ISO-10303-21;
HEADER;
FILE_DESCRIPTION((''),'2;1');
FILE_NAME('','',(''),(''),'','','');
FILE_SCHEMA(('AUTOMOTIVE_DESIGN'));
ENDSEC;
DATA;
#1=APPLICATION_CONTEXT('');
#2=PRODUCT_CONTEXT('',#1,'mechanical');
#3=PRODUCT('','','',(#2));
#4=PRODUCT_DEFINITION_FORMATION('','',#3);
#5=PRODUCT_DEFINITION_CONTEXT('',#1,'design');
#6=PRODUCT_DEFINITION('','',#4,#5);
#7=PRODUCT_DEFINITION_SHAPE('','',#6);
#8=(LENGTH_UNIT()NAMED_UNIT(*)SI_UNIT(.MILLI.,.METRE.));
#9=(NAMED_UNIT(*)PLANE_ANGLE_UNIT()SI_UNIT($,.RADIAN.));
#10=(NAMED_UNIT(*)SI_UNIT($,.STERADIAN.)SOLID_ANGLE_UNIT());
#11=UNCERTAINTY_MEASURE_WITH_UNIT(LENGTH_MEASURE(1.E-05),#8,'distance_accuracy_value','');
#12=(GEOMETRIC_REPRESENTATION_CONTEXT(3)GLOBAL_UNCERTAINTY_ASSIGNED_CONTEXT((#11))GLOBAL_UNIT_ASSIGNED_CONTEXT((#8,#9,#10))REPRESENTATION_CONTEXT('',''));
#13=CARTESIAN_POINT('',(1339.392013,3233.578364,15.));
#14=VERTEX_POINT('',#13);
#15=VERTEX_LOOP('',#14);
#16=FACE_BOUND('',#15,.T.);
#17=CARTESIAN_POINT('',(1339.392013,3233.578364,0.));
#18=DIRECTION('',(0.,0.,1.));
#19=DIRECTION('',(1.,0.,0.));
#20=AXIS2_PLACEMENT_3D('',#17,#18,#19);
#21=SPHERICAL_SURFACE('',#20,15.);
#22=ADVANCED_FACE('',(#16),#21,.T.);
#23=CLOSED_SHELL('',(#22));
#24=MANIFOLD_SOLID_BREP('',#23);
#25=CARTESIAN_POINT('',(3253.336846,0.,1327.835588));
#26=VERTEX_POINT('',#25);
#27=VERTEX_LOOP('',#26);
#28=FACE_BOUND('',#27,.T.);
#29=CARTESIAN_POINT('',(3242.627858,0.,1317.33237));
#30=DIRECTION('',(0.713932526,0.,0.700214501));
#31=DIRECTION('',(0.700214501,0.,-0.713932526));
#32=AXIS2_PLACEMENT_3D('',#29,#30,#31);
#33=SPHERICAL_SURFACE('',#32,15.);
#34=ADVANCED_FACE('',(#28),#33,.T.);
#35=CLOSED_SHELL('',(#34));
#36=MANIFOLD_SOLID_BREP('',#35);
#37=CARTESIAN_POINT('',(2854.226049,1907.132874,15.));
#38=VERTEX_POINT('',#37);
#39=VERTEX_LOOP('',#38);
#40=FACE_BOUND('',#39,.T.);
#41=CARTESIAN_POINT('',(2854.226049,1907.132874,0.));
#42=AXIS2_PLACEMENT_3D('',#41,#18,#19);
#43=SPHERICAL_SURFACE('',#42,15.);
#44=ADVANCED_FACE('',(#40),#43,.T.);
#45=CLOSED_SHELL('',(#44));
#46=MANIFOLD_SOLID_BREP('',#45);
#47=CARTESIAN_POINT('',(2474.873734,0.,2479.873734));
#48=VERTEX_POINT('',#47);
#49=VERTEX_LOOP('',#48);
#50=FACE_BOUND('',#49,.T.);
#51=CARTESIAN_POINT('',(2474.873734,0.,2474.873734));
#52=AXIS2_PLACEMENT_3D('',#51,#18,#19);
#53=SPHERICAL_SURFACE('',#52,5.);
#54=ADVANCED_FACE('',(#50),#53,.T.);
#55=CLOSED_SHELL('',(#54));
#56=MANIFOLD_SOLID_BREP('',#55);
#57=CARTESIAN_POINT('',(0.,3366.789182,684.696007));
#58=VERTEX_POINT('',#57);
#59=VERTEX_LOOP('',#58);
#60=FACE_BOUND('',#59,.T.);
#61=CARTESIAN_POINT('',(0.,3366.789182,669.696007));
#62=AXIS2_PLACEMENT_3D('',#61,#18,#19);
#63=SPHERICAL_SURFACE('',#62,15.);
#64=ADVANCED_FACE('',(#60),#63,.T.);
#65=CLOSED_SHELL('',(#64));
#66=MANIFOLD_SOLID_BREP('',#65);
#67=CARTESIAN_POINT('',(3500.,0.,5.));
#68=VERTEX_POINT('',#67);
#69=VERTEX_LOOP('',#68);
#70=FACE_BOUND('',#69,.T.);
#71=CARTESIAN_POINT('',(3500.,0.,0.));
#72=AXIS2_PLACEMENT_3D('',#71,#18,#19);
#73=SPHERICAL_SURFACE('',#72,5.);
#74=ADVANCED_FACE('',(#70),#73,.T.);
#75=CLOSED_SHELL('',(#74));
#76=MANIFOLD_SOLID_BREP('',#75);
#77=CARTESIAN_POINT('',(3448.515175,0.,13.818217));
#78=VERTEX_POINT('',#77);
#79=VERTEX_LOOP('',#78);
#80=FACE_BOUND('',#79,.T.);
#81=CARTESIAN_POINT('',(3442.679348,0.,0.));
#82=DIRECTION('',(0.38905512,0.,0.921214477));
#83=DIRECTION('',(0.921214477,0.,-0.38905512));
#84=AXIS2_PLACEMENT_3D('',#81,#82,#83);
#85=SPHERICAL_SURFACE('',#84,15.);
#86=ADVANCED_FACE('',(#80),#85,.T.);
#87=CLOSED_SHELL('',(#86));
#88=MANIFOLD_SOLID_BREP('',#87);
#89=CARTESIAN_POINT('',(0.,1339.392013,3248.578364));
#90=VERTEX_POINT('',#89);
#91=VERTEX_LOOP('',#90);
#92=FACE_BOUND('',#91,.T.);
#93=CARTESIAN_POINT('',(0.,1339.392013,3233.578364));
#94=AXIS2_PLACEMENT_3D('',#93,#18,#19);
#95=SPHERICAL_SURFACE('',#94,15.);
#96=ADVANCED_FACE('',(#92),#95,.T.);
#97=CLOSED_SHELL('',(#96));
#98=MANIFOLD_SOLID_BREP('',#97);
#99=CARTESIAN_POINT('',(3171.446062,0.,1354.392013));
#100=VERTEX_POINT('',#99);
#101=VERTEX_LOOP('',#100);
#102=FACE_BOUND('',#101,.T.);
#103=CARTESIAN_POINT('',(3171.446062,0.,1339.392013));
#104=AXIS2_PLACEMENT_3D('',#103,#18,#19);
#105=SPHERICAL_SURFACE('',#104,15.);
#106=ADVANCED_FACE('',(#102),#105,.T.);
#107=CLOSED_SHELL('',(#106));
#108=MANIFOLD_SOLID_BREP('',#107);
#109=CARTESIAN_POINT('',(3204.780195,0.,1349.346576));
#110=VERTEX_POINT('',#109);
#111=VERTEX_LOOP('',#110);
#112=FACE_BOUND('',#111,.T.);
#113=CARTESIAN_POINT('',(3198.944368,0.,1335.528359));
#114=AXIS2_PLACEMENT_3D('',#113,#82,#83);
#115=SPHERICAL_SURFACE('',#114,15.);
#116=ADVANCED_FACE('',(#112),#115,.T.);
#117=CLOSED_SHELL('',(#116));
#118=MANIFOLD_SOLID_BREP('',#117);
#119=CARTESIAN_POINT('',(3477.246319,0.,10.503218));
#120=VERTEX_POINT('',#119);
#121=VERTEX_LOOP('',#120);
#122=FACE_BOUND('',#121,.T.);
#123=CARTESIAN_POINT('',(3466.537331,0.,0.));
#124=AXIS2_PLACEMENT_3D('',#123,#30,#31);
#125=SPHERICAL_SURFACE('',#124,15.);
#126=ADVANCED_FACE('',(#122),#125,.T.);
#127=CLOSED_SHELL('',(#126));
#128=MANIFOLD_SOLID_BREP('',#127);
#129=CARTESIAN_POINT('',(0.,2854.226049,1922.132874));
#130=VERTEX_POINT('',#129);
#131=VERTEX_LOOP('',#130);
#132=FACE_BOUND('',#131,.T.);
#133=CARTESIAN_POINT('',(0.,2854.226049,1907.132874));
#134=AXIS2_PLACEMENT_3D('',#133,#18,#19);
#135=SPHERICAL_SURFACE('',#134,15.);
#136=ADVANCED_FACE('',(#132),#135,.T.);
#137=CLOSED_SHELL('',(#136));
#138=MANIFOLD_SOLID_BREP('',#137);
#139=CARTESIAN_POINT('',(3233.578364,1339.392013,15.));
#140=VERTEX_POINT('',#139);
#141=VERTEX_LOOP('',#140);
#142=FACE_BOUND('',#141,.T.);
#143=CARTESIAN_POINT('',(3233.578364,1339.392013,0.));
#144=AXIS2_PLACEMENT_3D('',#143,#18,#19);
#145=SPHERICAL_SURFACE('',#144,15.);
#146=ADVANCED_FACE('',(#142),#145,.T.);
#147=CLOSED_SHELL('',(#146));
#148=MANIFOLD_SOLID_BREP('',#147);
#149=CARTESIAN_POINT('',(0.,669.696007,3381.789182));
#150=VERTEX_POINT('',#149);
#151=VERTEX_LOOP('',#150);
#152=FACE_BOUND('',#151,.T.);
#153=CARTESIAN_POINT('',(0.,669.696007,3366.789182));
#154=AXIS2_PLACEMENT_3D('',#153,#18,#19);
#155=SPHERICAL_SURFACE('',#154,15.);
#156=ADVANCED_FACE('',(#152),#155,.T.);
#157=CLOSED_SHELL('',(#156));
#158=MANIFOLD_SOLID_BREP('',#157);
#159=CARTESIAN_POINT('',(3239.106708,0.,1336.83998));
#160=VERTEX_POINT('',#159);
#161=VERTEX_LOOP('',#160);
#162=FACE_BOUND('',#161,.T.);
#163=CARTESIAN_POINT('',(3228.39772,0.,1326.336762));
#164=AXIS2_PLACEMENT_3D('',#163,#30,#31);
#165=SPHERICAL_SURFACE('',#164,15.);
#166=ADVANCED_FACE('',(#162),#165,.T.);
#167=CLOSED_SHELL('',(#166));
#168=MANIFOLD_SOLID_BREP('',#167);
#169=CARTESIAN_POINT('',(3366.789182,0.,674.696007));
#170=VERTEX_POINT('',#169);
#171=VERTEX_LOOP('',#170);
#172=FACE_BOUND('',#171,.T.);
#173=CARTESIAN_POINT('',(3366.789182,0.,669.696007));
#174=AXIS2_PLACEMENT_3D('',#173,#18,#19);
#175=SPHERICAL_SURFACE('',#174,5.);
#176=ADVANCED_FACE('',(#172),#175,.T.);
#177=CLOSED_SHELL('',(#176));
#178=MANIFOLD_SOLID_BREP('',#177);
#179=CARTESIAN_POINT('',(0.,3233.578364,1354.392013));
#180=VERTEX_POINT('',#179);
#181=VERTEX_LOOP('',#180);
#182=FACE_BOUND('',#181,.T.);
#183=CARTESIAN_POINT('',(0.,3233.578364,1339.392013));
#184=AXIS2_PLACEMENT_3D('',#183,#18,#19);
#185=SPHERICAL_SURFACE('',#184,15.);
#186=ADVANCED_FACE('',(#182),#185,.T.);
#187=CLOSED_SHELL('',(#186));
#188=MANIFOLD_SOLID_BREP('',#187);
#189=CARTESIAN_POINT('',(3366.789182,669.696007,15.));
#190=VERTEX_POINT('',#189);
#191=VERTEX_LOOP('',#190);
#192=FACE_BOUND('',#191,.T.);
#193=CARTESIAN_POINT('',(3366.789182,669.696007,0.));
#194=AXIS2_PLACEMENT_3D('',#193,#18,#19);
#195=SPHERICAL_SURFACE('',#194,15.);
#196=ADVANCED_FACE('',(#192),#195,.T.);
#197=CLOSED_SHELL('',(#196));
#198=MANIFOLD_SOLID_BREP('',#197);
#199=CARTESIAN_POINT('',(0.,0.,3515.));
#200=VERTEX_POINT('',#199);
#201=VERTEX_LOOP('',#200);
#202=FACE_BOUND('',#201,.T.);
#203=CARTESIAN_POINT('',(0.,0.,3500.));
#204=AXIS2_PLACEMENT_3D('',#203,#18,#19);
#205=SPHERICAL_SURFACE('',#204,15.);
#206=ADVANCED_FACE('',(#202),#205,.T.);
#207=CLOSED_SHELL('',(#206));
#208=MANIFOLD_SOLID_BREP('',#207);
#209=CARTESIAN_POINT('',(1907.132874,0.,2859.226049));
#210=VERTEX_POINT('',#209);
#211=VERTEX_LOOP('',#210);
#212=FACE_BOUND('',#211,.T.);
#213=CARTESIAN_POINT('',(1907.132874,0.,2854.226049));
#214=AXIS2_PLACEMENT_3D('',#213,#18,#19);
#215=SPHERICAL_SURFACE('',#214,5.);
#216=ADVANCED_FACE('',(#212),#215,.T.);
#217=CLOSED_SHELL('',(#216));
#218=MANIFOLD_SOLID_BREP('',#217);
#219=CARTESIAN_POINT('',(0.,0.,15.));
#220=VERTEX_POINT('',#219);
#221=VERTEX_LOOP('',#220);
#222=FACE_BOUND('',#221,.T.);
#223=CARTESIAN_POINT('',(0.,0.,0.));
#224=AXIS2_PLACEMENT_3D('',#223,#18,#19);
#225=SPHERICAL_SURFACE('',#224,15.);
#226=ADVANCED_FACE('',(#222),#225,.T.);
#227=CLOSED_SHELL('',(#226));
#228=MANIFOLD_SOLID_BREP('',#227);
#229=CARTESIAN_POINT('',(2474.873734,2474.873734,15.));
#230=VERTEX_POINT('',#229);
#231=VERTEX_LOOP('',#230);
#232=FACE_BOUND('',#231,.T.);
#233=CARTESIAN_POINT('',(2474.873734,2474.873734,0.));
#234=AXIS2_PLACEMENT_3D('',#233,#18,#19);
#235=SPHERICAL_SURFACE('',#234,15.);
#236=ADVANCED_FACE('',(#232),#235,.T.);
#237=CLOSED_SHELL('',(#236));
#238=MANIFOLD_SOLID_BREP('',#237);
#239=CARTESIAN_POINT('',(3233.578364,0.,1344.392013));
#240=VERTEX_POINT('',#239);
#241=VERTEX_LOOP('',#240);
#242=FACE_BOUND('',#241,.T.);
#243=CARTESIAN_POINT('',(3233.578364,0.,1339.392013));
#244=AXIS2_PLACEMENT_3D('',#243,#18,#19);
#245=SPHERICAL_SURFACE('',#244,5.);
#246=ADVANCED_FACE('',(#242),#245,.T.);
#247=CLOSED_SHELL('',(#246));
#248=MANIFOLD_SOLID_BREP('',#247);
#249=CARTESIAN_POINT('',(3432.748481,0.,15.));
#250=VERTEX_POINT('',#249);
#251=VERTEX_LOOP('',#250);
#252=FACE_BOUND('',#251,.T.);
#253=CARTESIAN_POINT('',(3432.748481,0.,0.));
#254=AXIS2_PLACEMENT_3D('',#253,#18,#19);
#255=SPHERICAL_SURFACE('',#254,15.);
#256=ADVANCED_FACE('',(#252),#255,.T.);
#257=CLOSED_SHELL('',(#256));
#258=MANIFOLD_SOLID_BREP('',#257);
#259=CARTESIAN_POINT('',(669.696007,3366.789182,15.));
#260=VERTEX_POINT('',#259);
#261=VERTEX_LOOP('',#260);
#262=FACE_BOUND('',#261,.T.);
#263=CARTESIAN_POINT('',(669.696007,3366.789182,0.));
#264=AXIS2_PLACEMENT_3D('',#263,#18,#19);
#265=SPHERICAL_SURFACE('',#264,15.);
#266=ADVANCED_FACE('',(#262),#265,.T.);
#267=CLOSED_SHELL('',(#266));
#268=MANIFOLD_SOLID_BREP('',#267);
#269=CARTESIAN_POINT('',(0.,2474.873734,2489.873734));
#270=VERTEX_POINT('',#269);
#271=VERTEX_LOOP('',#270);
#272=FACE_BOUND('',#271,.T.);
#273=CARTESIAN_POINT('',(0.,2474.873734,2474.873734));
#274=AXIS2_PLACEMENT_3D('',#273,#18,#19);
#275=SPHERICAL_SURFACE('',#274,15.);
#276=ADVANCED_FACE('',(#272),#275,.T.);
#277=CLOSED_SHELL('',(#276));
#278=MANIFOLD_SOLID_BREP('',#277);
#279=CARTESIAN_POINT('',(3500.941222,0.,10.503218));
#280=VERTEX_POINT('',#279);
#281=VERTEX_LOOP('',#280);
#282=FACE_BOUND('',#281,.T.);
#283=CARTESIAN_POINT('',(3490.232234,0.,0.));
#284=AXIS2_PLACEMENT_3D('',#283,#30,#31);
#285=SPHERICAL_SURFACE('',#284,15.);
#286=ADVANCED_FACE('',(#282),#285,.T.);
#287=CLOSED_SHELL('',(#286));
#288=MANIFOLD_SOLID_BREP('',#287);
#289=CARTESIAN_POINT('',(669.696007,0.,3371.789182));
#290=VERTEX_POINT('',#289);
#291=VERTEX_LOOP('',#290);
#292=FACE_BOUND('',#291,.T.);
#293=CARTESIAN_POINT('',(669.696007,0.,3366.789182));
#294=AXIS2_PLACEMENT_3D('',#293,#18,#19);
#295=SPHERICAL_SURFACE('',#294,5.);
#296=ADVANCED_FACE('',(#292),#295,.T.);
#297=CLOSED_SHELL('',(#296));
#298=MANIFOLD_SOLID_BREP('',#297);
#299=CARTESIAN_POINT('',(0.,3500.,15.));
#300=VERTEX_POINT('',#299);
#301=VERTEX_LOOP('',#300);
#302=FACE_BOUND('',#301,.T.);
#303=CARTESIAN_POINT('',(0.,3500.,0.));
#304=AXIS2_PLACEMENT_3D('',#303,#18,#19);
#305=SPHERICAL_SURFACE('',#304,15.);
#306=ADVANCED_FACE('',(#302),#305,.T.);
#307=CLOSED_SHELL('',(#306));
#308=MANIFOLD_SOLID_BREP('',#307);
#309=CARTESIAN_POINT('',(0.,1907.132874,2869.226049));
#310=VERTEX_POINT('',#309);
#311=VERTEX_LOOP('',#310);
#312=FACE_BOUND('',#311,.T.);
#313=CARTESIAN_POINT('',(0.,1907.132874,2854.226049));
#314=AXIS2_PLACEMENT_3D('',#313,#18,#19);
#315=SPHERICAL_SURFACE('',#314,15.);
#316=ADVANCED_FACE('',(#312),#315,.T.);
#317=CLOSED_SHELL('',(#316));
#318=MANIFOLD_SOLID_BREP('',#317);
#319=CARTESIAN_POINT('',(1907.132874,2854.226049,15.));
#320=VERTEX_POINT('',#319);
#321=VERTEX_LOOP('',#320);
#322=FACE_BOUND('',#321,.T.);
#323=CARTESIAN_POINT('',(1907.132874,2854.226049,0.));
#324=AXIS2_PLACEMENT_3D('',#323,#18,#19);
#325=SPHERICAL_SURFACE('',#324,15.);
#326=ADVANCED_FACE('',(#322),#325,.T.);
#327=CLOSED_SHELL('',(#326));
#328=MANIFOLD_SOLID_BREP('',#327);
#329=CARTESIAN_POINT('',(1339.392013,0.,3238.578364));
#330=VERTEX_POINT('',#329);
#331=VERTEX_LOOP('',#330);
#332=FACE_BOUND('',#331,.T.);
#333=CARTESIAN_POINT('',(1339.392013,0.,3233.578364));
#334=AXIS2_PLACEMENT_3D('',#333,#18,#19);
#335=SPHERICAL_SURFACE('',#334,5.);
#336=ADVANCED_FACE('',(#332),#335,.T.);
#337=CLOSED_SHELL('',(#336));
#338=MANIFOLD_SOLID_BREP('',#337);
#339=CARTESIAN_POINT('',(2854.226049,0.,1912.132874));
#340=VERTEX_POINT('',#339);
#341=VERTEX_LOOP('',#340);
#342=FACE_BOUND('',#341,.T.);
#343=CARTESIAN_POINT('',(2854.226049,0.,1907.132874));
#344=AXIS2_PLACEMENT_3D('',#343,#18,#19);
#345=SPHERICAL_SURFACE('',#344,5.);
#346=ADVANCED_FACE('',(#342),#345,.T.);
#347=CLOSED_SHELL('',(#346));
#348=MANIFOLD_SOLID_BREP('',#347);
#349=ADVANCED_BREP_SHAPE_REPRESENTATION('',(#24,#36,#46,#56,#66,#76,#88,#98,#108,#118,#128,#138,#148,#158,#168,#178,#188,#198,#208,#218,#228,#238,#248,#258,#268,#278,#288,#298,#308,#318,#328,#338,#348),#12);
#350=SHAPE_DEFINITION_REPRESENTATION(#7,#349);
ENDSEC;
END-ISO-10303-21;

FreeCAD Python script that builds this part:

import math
import FreeCAD as App
import Part
import Sketcher
from FreeCAD import Vector

doc = App.newDocument("Part")
body = doc.addObject("PartDesign::Body", "Body")

sketch1 = doc.addObject("Sketcher::SketchObject", "Sketch")
body.addObject(sketch1)
sketch1.AttachmentSupport = (doc.XZ_Plane, [""])
sketch1.MapMode = "FlatFace"
sketch1.addGeometry([
    Part.ArcOfCircle(Part.Circle(Vector(3500, 0, 0), Vector(0, 0, 1), 5), math.radians(-90), math.radians(90)),
    Part.LineSegment(Vector(3500, 5, 0), Vector(3500, -5, 0)),
], False)
sketch1.addGeometry(Part.LineSegment(Vector(3500, -5, 0), Vector(3500, 5, 0)), True)
sketch1.addConstraint([
    Sketcher.Constraint("Coincident", 0, 1, 1, 2),
    Sketcher.Constraint("Coincident", 1, 1, 0, 2),
    Sketcher.Constraint("Vertical", 1),
    Sketcher.Constraint("Vertical", 2),
    Sketcher.Constraint("Coincident", 2, 1, 0, 1),
    Sketcher.Constraint("PointOnObject", 0, 3, -1),
    Sketcher.Constraint("Equal", 1, 2),
    Sketcher.Constraint("Radius", 0, 5.0),
    Sketcher.Constraint("DistanceX", -1, 1, 0, 3, 3500.0),
    Sketcher.Constraint("DistanceX", -1, 1, 0, 1, 3500.0),
])
revolution = doc.addObject("PartDesign::Revolution", "Revolution")
body.addObject(revolution)
revolution.Profile = sketch1
revolution.ReferenceAxis = (sketch1, ["Axis0"])
revolution.Angle = 360
body2 = doc.addObject("PartDesign::Body", "Body001")

sketch2 = doc.addObject("Sketcher::SketchObject", "Sketch001")
body2.addObject(sketch2)
sketch2.AttachmentSupport = (doc.getObject("XZ_Plane001"), [""])
sketch2.MapMode = "FlatFace"
sketch2.addGeometry([
    Part.ArcOfCircle(Part.Circle(Vector(0, 0, 0), Vector(0, 0, 1), 15), math.radians(-90), math.radians(90)),
    Part.LineSegment(Vector(0, 15, 0), Vector(0, -15, 0)),
], False)
sketch2.addConstraint([
    Sketcher.Constraint("Coincident", 0, 1, 1, 2),
    Sketcher.Constraint("Coincident", 1, 1, 0, 2),
    Sketcher.Constraint("Vertical", 1),
    Sketcher.Constraint("Coincident", 0, 3, -1, 1),
    Sketcher.Constraint("PointOnObject", 0, 1, -2),
    Sketcher.Constraint("Radius", 0, 15.0),
])
revolution2 = doc.addObject("PartDesign::Revolution", "Revolution001")
body2.addObject(revolution2)
revolution2.Profile = sketch2
revolution2.ReferenceAxis = (sketch2, ["V_Axis"])
revolution2.Angle = 360
body3 = doc.addObject("PartDesign::Body", "Body002")

sketch3 = doc.addObject("Sketcher::SketchObject", "Sketch002")
body3.addObject(sketch3)
sketch3.AttachmentSupport = (doc.getObject("XZ_Plane002"), [""])
sketch3.MapMode = "FlatFace"
sketch3.addGeometry([
    Part.ArcOfCircle(Part.Circle(Vector(0, 3500, 0), Vector(0, 0, 1), 15), math.radians(-90), math.radians(90)),
    Part.LineSegment(Vector(0, 3515, 0), Vector(0, 3485, 0)),
], False)
sketch3.addConstraint([
    Sketcher.Constraint("Coincident", 0, 1, 1, 2),
    Sketcher.Constraint("Coincident", 1, 1, 0, 2),
    Sketcher.Constraint("Vertical", 1),
    Sketcher.Constraint("PointOnObject", 0, 3, -2),
    Sketcher.Constraint("PointOnObject", 0, 1, -2),
    Sketcher.Constraint("Radius", 0, 15.0),
    Sketcher.Constraint("DistanceY", -1, 1, 0, 3, 3500.0),
])
revolution3 = doc.addObject("PartDesign::Revolution", "Revolution002")
body3.addObject(revolution3)
revolution3.Profile = sketch3
revolution3.ReferenceAxis = (sketch3, ["V_Axis"])
revolution3.Angle = 360
body4 = doc.addObject("PartDesign::Body", "Body003")

sketch4 = doc.addObject("Sketcher::SketchObject", "Sketch003")
body4.addObject(sketch4)
sketch4.AttachmentSupport = (doc.getObject("XZ_Plane003"), [""])
sketch4.MapMode = "FlatFace"
sketch4.addGeometry([
    Part.ArcOfCircle(Part.Circle(Vector(1339, 3234, 0), Vector(0, 0, 1), 5), math.radians(-90), math.radians(90)),
    Part.LineSegment(Vector(1339, 3239, 0), Vector(1339, 3229, 0)),
], False)
sketch4.addGeometry(Part.LineSegment(Vector(1339, 3229, 0), Vector(1339, 3239, 0)), True)
sketch4.addConstraint([
    Sketcher.Constraint("Coincident", 0, 1, 1, 2),
    Sketcher.Constraint("Coincident", 1, 1, 0, 2),
    Sketcher.Constraint("Vertical", 1),
    Sketcher.Constraint("Vertical", 2),
    Sketcher.Constraint("Coincident", 2, 1, 0, 1),
    Sketcher.Constraint("Equal", 1, 2),
    Sketcher.Constraint("Radius", 0, 5.0),
    Sketcher.Constraint("DistanceX", -1, 1, 0, 3, 1339.392013),
    Sketcher.Constraint("DistanceY", -1, 1, 0, 3, 3233.578364),
    Sketcher.Constraint("DistanceX", -1, 1, 0, 1, 1339.392013),
])
revolution4 = doc.addObject("PartDesign::Revolution", "Revolution003")
body4.addObject(revolution4)
revolution4.Profile = sketch4
revolution4.ReferenceAxis = (sketch4, ["Axis0"])
revolution4.Angle = 360
body5 = doc.addObject("PartDesign::Body", "Body004")

sketch5 = doc.addObject("Sketcher::SketchObject", "Sketch004")
body5.addObject(sketch5)
sketch5.AttachmentSupport = (doc.getObject("XZ_Plane004"), [""])
sketch5.MapMode = "FlatFace"
sketch5.addGeometry([
    Part.ArcOfCircle(Part.Circle(Vector(2475, 2475, 0), Vector(0, 0, 1), 5), math.radians(-90), math.radians(90)),
    Part.LineSegment(Vector(2475, 2480, 0), Vector(2475, 2470, 0)),
], False)
sketch5.addGeometry(Part.LineSegment(Vector(2475, 2470, 0), Vector(2475, 2480, 0)), True)
sketch5.addConstraint([
    Sketcher.Constraint("Coincident", 0, 1, 1, 2),
    Sketcher.Constraint("Coincident", 1, 1, 0, 2),
    Sketcher.Constraint("Vertical", 1),
    Sketcher.Constraint("Vertical", 2),
    Sketcher.Constraint("Coincident", 2, 1, 0, 1),
    Sketcher.Constraint("Equal", 1, 2),
    Sketcher.Constraint("Radius", 0, 5.0),
    Sketcher.Constraint("DistanceX", -1, 1, 0, 3, 2474.873734),
    Sketcher.Constraint("DistanceY", -1, 1, 0, 3, 2474.873734),
    Sketcher.Constraint("DistanceX", -1, 1, 0, 1, 2474.873734),
])
revolution5 = doc.addObject("PartDesign::Revolution", "Revolution004")
body5.addObject(revolution5)
revolution5.Profile = sketch5
revolution5.ReferenceAxis = (sketch5, ["Axis0"])
revolution5.Angle = 360
body6 = doc.addObject("PartDesign::Body", "Body005")

sketch6 = doc.addObject("Sketcher::SketchObject", "Sketch005")
body6.addObject(sketch6)
sketch6.AttachmentSupport = (doc.getObject("XZ_Plane005"), [""])
sketch6.MapMode = "FlatFace"
sketch6.addGeometry([
    Part.ArcOfCircle(Part.Circle(Vector(3234, 1339, 0), Vector(0, 0, 1), 5), math.radians(-90), math.radians(90)),
    Part.LineSegment(Vector(3234, 1344, 0), Vector(3234, 1334, 0)),
], False)
sketch6.addGeometry(Part.LineSegment(Vector(3234, 1334, 0), Vector(3234, 1344, 0)), True)
sketch6.addConstraint([
    Sketcher.Constraint("Coincident", 0, 1, 1, 2),
    Sketcher.Constraint("Coincident", 1, 1, 0, 2),
    Sketcher.Constraint("Vertical", 1),
    Sketcher.Constraint("Vertical", 2),
    Sketcher.Constraint("Coincident", 2, 1, 0, 1),
    Sketcher.Constraint("Equal", 1, 2),
    Sketcher.Constraint("Radius", 0, 5.0),
    Sketcher.Constraint("DistanceX", -1, 1, 0, 3, 3233.578364),
    Sketcher.Constraint("DistanceY", -1, 1, 0, 3, 1339.392013),
    Sketcher.Constraint("DistanceX", -1, 1, 0, 1, 3233.578364),
])
revolution6 = doc.addObject("PartDesign::Revolution", "Revolution005")
body6.addObject(revolution6)
revolution6.Profile = sketch6
revolution6.ReferenceAxis = (sketch6, ["Axis0"])
revolution6.Angle = 360
body7 = doc.addObject("PartDesign::Body", "Body006")

sketch7 = doc.addObject("Sketcher::SketchObject", "Sketch006")
body7.addObject(sketch7)
sketch7.AttachmentSupport = (doc.getObject("XZ_Plane006"), [""])
sketch7.MapMode = "FlatFace"
sketch7.AttachmentOffset = App.Placement(Vector(0, 0, -3500), App.Rotation())
sketch7.addGeometry([
    Part.ArcOfCircle(Part.Circle(Vector(0, 0, 0), Vector(0, 0, 1), 15), math.radians(-90), math.radians(90)),
    Part.LineSegment(Vector(0, 15, 0), Vector(0, -15, 0)),
], False)
sketch7.addConstraint([
    Sketcher.Constraint("Coincident", 0, 1, 1, 2),
    Sketcher.Constraint("Coincident", 1, 1, 0, 2),
    Sketcher.Constraint("Vertical", 1),
    Sketcher.Constraint("Coincident", 0, 3, -1, 1),
    Sketcher.Constraint("PointOnObject", 0, 1, -2),
    Sketcher.Constraint("Radius", 0, 15.0),
])
revolution7 = doc.addObject("PartDesign::Revolution", "Revolution006")
body7.addObject(revolution7)
revolution7.Profile = sketch7
revolution7.ReferenceAxis = (sketch7, ["V_Axis"])
revolution7.Angle = 360
body8 = doc.addObject("PartDesign::Body", "Body007")

sketch8 = doc.addObject("Sketcher::SketchObject", "Sketch007")
body8.addObject(sketch8)
sketch8.AttachmentSupport = (doc.getObject("XZ_Plane007"), [""])
sketch8.MapMode = "FlatFace"
sketch8.AttachmentOffset = App.Placement(Vector(0, 0, -3233.578364), App.Rotation())
sketch8.addGeometry([
    Part.ArcOfCircle(Part.Circle(Vector(0, 1339, 0), Vector(0, 0, 1), 15), math.radians(-90), math.radians(90)),
    Part.LineSegment(Vector(0, 1354, 0), Vector(0, 1324, 0)),
], False)
sketch8.addConstraint([
    Sketcher.Constraint("Coincident", 0, 1, 1, 2),
    Sketcher.Constraint("Coincident", 1, 1, 0, 2),
    Sketcher.Constraint("Vertical", 1),
    Sketcher.Constraint("PointOnObject", 0, 3, -2),
    Sketcher.Constraint("PointOnObject", 0, 1, -2),
    Sketcher.Constraint("Radius", 0, 15.0),
    Sketcher.Constraint("DistanceY", -1, 1, 0, 3, 1339.392013),
])
revolution8 = doc.addObject("PartDesign::Revolution", "Revolution007")
body8.addObject(revolution8)
revolution8.Profile = sketch8
revolution8.ReferenceAxis = (sketch8, ["V_Axis"])
revolution8.Angle = 360
body9 = doc.addObject("PartDesign::Body", "Body008")

sketch9 = doc.addObject("Sketcher::SketchObject", "Sketch008")
body9.addObject(sketch9)
sketch9.AttachmentSupport = (doc.getObject("XZ_Plane008"), [""])
sketch9.MapMode = "FlatFace"
sketch9.AttachmentOffset = App.Placement(Vector(0, 0, -2474.873734), App.Rotation())
sketch9.addGeometry([
    Part.ArcOfCircle(Part.Circle(Vector(0, 2475, 0), Vector(0, 0, 1), 15), math.radians(-90), math.radians(90)),
    Part.LineSegment(Vector(0, 2490, 0), Vector(0, 2460, 0)),
], False)
sketch9.addConstraint([
    Sketcher.Constraint("Coincident", 0, 1, 1, 2),
    Sketcher.Constraint("Coincident", 1, 1, 0, 2),
    Sketcher.Constraint("Vertical", 1),
    Sketcher.Constraint("PointOnObject", 0, 3, -2),
    Sketcher.Constraint("PointOnObject", 0, 1, -2),
    Sketcher.Constraint("Radius", 0, 15.0),
    Sketcher.Constraint("DistanceY", -1, 1, 0, 3, 2474.873734),
])
revolution9 = doc.addObject("PartDesign::Revolution", "Revolution008")
body9.addObject(revolution9)
revolution9.Profile = sketch9
revolution9.ReferenceAxis = (sketch9, ["V_Axis"])
revolution9.Angle = 360
body10 = doc.addObject("PartDesign::Body", "Body009")

sketch10 = doc.addObject("Sketcher::SketchObject", "Sketch009")
body10.addObject(sketch10)
sketch10.AttachmentSupport = (doc.getObject("XZ_Plane009"), [""])
sketch10.MapMode = "FlatFace"
sketch10.AttachmentOffset = App.Placement(Vector(0, 0, -1339.392013), App.Rotation())
sketch10.addGeometry([
    Part.ArcOfCircle(Part.Circle(Vector(0, 3234, 0), Vector(0, 0, 1), 15), math.radians(-90), math.radians(90)),
    Part.LineSegment(Vector(0, 3249, 0), Vector(0, 3219, 0)),
], False)
sketch10.addConstraint([
    Sketcher.Constraint("Coincident", 0, 1, 1, 2),
    Sketcher.Constraint("Coincident", 1, 1, 0, 2),
    Sketcher.Constraint("Vertical", 1),
    Sketcher.Constraint("PointOnObject", 0, 3, -2),
    Sketcher.Constraint("PointOnObject", 0, 1, -2),
    Sketcher.Constraint("Radius", 0, 15.0),
    Sketcher.Constraint("DistanceY", -1, 1, 0, 3, 3233.578364),
])
revolution10 = doc.addObject("PartDesign::Revolution", "Revolution009")
body10.addObject(revolution10)
revolution10.Profile = sketch10
revolution10.ReferenceAxis = (sketch10, ["V_Axis"])
revolution10.Angle = 360
body11 = doc.addObject("PartDesign::Body", "Body010")

sketch11 = doc.addObject("Sketcher::SketchObject", "Sketch010")
body11.addObject(sketch11)
sketch11.AttachmentSupport = (doc.getObject("XZ_Plane010"), [""])
sketch11.MapMode = "FlatFace"
sketch11.AttachmentOffset = App.Placement(Vector(0, 0, -3233.578364), App.Rotation())
sketch11.addGeometry([
    Part.ArcOfCircle(Part.Circle(Vector(1339, 0, 0), Vector(0, 0, 1), 15), math.radians(-90), math.radians(90)),
    Part.LineSegment(Vector(1339, 15, 0), Vector(1339, -15, 0)),
], False)
sketch11.addGeometry(Part.LineSegment(Vector(1339, -15, 0), Vector(1339, 15, 0)), True)
sketch11.addConstraint([
    Sketcher.Constraint("Coincident", 0, 1, 1, 2),
    Sketcher.Constraint("Coincident", 1, 1, 0, 2),
    Sketcher.Constraint("Vertical", 1),
    Sketcher.Constraint("Vertical", 2),
    Sketcher.Constraint("Coincident", 2, 1, 0, 1),
    Sketcher.Constraint("PointOnObject", 0, 3, -1),
    Sketcher.Constraint("Equal", 1, 2),
    Sketcher.Constraint("Radius", 0, 15.0),
    Sketcher.Constraint("DistanceX", -1, 1, 0, 3, 1339.392013),
    Sketcher.Constraint("DistanceX", -1, 1, 0, 1, 1339.392013),
])
revolution11 = doc.addObject("PartDesign::Revolution", "Revolution010")
body11.addObject(revolution11)
revolution11.Profile = sketch11
revolution11.ReferenceAxis = (sketch11, ["Axis0"])
revolution11.Angle = 360
body12 = doc.addObject("PartDesign::Body", "Body011")

sketch12 = doc.addObject("Sketcher::SketchObject", "Sketch011")
body12.addObject(sketch12)
sketch12.AttachmentSupport = (doc.getObject("XZ_Plane011"), [""])
sketch12.MapMode = "FlatFace"
sketch12.AttachmentOffset = App.Placement(Vector(0, 0, -2474.873734), App.Rotation())
sketch12.addGeometry([
    Part.ArcOfCircle(Part.Circle(Vector(2475, 0, 0), Vector(0, 0, 1), 15), math.radians(-90), math.radians(90)),
    Part.LineSegment(Vector(2475, 15, 0), Vector(2475, -15, 0)),
], False)
sketch12.addGeometry(Part.LineSegment(Vector(2475, -15, 0), Vector(2475, 15, 0)), True)
sketch12.addConstraint([
    Sketcher.Constraint("Coincident", 0, 1, 1, 2),
    Sketcher.Constraint("Coincident", 1, 1, 0, 2),
    Sketcher.Constraint("Vertical", 1),
    Sketcher.Constraint("Vertical", 2),
    Sketcher.Constraint("Coincident", 2, 1, 0, 1),
    Sketcher.Constraint("PointOnObject", 0, 3, -1),
    Sketcher.Constraint("Equal", 1, 2),
    Sketcher.Constraint("Radius", 0, 15.0),
    Sketcher.Constraint("DistanceX", -1, 1, 0, 3, 2474.873734),
    Sketcher.Constraint("DistanceX", -1, 1, 0, 1, 2474.873734),
])
revolution12 = doc.addObject("PartDesign::Revolution", "Revolution011")
body12.addObject(revolution12)
revolution12.Profile = sketch12
revolution12.ReferenceAxis = (sketch12, ["Axis0"])
revolution12.Angle = 360
body13 = doc.addObject("PartDesign::Body", "Body012")

sketch13 = doc.addObject("Sketcher::SketchObject", "Sketch012")
body13.addObject(sketch13)
sketch13.AttachmentSupport = (doc.getObject("XZ_Plane012"), [""])
sketch13.MapMode = "FlatFace"
sketch13.AttachmentOffset = App.Placement(Vector(0, 0, -1339.392013), App.Rotation())
sketch13.addGeometry([
    Part.ArcOfCircle(Part.Circle(Vector(3234, 0, 0), Vector(0, 0, 1), 15), math.radians(-90), math.radians(90)),
    Part.LineSegment(Vector(3234, 15, 0), Vector(3234, -15, 0)),
], False)
sketch13.addGeometry(Part.LineSegment(Vector(3234, -15, 0), Vector(3234, 15, 0)), True)
sketch13.addConstraint([
    Sketcher.Constraint("Coincident", 0, 1, 1, 2),
    Sketcher.Constraint("Coincident", 1, 1, 0, 2),
    Sketcher.Constraint("Vertical", 1),
    Sketcher.Constraint("Vertical", 2),
    Sketcher.Constraint("Coincident", 2, 1, 0, 1),
    Sketcher.Constraint("PointOnObject", 0, 3, -1),
    Sketcher.Constraint("Equal", 1, 2),
    Sketcher.Constraint("Radius", 0, 15.0),
    Sketcher.Constraint("DistanceX", -1, 1, 0, 3, 3233.578364),
    Sketcher.Constraint("DistanceX", -1, 1, 0, 1, 3233.578364),
])
revolution13 = doc.addObject("PartDesign::Revolution", "Revolution012")
body13.addObject(revolution13)
revolution13.Profile = sketch13
revolution13.ReferenceAxis = (sketch13, ["Axis0"])
revolution13.Angle = 360
body14 = doc.addObject("PartDesign::Body", "Body013")

sketch14 = doc.addObject("Sketcher::SketchObject", "Sketch013")
body14.addObject(sketch14)
sketch14.AttachmentSupport = (doc.getObject("XZ_Plane013"), [""])
sketch14.MapMode = "FlatFace"
sketch14.AttachmentOffset = App.Placement(Vector(0, 0, -669.696007), App.Rotation())
sketch14.addGeometry([
    Part.ArcOfCircle(Part.Circle(Vector(3367, 0, 0), Vector(0, 0, 1), 15), math.radians(-90), math.radians(90)),
    Part.LineSegment(Vector(3367, 15, 0), Vector(3367, -15, 0)),
], False)
sketch14.addGeometry(Part.LineSegment(Vector(3367, -15, 0), Vector(3367, 15, 0)), True)
sketch14.addConstraint([
    Sketcher.Constraint("Coincident", 0, 1, 1, 2),
    Sketcher.Constraint("Coincident", 1, 1, 0, 2),
    Sketcher.Constraint("Vertical", 1),
    Sketcher.Constraint("Vertical", 2),
    Sketcher.Constraint("Coincident", 2, 1, 0, 1),
    Sketcher.Constraint("PointOnObject", 0, 3, -1),
    Sketcher.Constraint("Equal", 1, 2),
    Sketcher.Constraint("Radius", 0, 15.0),
    Sketcher.Constraint("DistanceX", -1, 1, 0, 3, 3366.789182),
    Sketcher.Constraint("DistanceX", -1, 1, 0, 1, 3366.789182),
])
revolution14 = doc.addObject("PartDesign::Revolution", "Revolution013")
body14.addObject(revolution14)
revolution14.Profile = sketch14
revolution14.ReferenceAxis = (sketch14, ["Axis0"])
revolution14.Angle = 360
body15 = doc.addObject("PartDesign::Body", "Body014")

sketch15 = doc.addObject("Sketcher::SketchObject", "Sketch014")
body15.addObject(sketch15)
sketch15.AttachmentSupport = (doc.getObject("XZ_Plane014"), [""])
sketch15.MapMode = "FlatFace"
sketch15.AttachmentOffset = App.Placement(Vector(0, 0, -1907.132874), App.Rotation())
sketch15.addGeometry([
    Part.ArcOfCircle(Part.Circle(Vector(2854, 0, 0), Vector(0, 0, 1), 15), math.radians(-90), math.radians(90)),
    Part.LineSegment(Vector(2854, 15, 0), Vector(2854, -15, 0)),
], False)
sketch15.addGeometry(Part.LineSegment(Vector(2854, -15, 0), Vector(2854, 15, 0)), True)
sketch15.addConstraint([
    Sketcher.Constraint("Coincident", 0, 1, 1, 2),
    Sketcher.Constraint("Coincident", 1, 1, 0, 2),
    Sketcher.Constraint("Vertical", 1),
    Sketcher.Constraint("Vertical", 2),
    Sketcher.Constraint("Coincident", 2, 1, 0, 1),
    Sketcher.Constraint("PointOnObject", 0, 3, -1),
    Sketcher.Constraint("Equal", 1, 2),
    Sketcher.Constraint("Radius", 0, 15.0),
    Sketcher.Constraint("DistanceX", -1, 1, 0, 3, 2854.226049),
    Sketcher.Constraint("DistanceX", -1, 1, 0, 1, 2854.226049),
])
revolution15 = doc.addObject("PartDesign::Revolution", "Revolution014")
body15.addObject(revolution15)
revolution15.Profile = sketch15
revolution15.ReferenceAxis = (sketch15, ["Axis0"])
revolution15.Angle = 360
body16 = doc.addObject("PartDesign::Body", "Body015")

sketch16 = doc.addObject("Sketcher::SketchObject", "Sketch015")
body16.addObject(sketch16)
sketch16.AttachmentSupport = (doc.getObject("XZ_Plane015"), [""])
sketch16.MapMode = "FlatFace"
sketch16.AttachmentOffset = App.Placement(Vector(0, 0, -2854.226049), App.Rotation())
sketch16.addGeometry([
    Part.ArcOfCircle(Part.Circle(Vector(1907, 0, 0), Vector(0, 0, 1), 15), math.radians(-90), math.radians(90)),
    Part.LineSegment(Vector(1907, 15, 0), Vector(1907, -15, 0)),
], False)
sketch16.addGeometry(Part.LineSegment(Vector(1907, -15, 0), Vector(1907, 15, 0)), True)
sketch16.addConstraint([
    Sketcher.Constraint("Coincident", 0, 1, 1, 2),
    Sketcher.Constraint("Coincident", 1, 1, 0, 2),
    Sketcher.Constraint("Vertical", 1),
    Sketcher.Constraint("Vertical", 2),
    Sketcher.Constraint("Coincident", 2, 1, 0, 1),
    Sketcher.Constraint("PointOnObject", 0, 3, -1),
    Sketcher.Constraint("Equal", 1, 2),
    Sketcher.Constraint("Radius", 0, 15.0),
    Sketcher.Constraint("DistanceX", -1, 1, 0, 3, 1907.132874),
    Sketcher.Constraint("DistanceX", -1, 1, 0, 1, 1907.132874),
])
revolution16 = doc.addObject("PartDesign::Revolution", "Revolution015")
body16.addObject(revolution16)
revolution16.Profile = sketch16
revolution16.ReferenceAxis = (sketch16, ["Axis0"])
revolution16.Angle = 360
body17 = doc.addObject("PartDesign::Body", "Body016")

sketch17 = doc.addObject("Sketcher::SketchObject", "Sketch016")
body17.addObject(sketch17)
sketch17.AttachmentSupport = (doc.getObject("XZ_Plane016"), [""])
sketch17.MapMode = "FlatFace"
sketch17.AttachmentOffset = App.Placement(Vector(0, 0, -3366.789182), App.Rotation())
sketch17.addGeometry([
    Part.ArcOfCircle(Part.Circle(Vector(670, 0, 0), Vector(0, 0, 1), 15), math.radians(-90), math.radians(90)),
    Part.LineSegment(Vector(670, 15, 0), Vector(670, -15, 0)),
], False)
sketch17.addGeometry(Part.LineSegment(Vector(670, -15, 0), Vector(670, 15, 0)), True)
sketch17.addConstraint([
    Sketcher.Constraint("Coincident", 0, 1, 1, 2),
    Sketcher.Constraint("Coincident", 1, 1, 0, 2),
    Sketcher.Constraint("Vertical", 1),
    Sketcher.Constraint("Vertical", 2),
    Sketcher.Constraint("Coincident", 2, 1, 0, 1),
    Sketcher.Constraint("PointOnObject", 0, 3, -1),
    Sketcher.Constraint("Equal", 1, 2),
    Sketcher.Constraint("Radius", 0, 15.0),
    Sketcher.Constraint("DistanceX", -1, 1, 0, 3, 669.696007),
    Sketcher.Constraint("DistanceX", -1, 1, 0, 1, 669.696007),
])
revolution17 = doc.addObject("PartDesign::Revolution", "Revolution016")
body17.addObject(revolution17)
revolution17.Profile = sketch17
revolution17.ReferenceAxis = (sketch17, ["Axis0"])
revolution17.Angle = 360
body18 = doc.addObject("PartDesign::Body", "Body017")

sketch18 = doc.addObject("Sketcher::SketchObject", "Sketch017")
body18.addObject(sketch18)
sketch18.AttachmentSupport = (doc.getObject("XZ_Plane017"), [""])
sketch18.MapMode = "FlatFace"
sketch18.AttachmentOffset = App.Placement(Vector(0, 0, -3366.789182), App.Rotation())
sketch18.addGeometry([
    Part.ArcOfCircle(Part.Circle(Vector(0, 670, 0), Vector(0, 0, 1), 15), math.radians(-90), math.radians(90)),
    Part.LineSegment(Vector(0, 685, 0), Vector(0, 655, 0)),
], False)
sketch18.addConstraint([
    Sketcher.Constraint("Coincident", 0, 1, 1, 2),
    Sketcher.Constraint("Coincident", 1, 1, 0, 2),
    Sketcher.Constraint("Vertical", 1),
    Sketcher.Constraint("PointOnObject", 0, 3, -2),
    Sketcher.Constraint("PointOnObject", 0, 1, -2),
    Sketcher.Constraint("Radius", 0, 15.0),
    Sketcher.Constraint("DistanceY", -1, 1, 0, 3, 669.696007),
])
revolution18 = doc.addObject("PartDesign::Revolution", "Revolution017")
body18.addObject(revolution18)
revolution18.Profile = sketch18
revolution18.ReferenceAxis = (sketch18, ["V_Axis"])
revolution18.Angle = 360
body19 = doc.addObject("PartDesign::Body", "Body018")

sketch19 = doc.addObject("Sketcher::SketchObject", "Sketch018")
body19.addObject(sketch19)
sketch19.AttachmentSupport = (doc.getObject("XZ_Plane018"), [""])
sketch19.MapMode = "FlatFace"
sketch19.AttachmentOffset = App.Placement(Vector(0, 0, -2854.226049), App.Rotation())
sketch19.addGeometry([
    Part.ArcOfCircle(Part.Circle(Vector(0, 1907, 0), Vector(0, 0, 1), 15), math.radians(-90), math.radians(90)),
    Part.LineSegment(Vector(0, 1922, 0), Vector(0, 1892, 0)),
], False)
sketch19.addConstraint([
    Sketcher.Constraint("Coincident", 0, 1, 1, 2),
    Sketcher.Constraint("Coincident", 1, 1, 0, 2),
    Sketcher.Constraint("Vertical", 1),
    Sketcher.Constraint("PointOnObject", 0, 3, -2),
    Sketcher.Constraint("PointOnObject", 0, 1, -2),
    Sketcher.Constraint("Radius", 0, 15.0),
    Sketcher.Constraint("DistanceY", -1, 1, 0, 3, 1907.132874),
])
revolution19 = doc.addObject("PartDesign::Revolution", "Revolution018")
body19.addObject(revolution19)
revolution19.Profile = sketch19
revolution19.ReferenceAxis = (sketch19, ["V_Axis"])
revolution19.Angle = 360
body20 = doc.addObject("PartDesign::Body", "Body019")

sketch20 = doc.addObject("Sketcher::SketchObject", "Sketch019")
body20.addObject(sketch20)
sketch20.AttachmentSupport = (doc.getObject("XZ_Plane019"), [""])
sketch20.MapMode = "FlatFace"
sketch20.AttachmentOffset = App.Placement(Vector(0, 0, -1907.132874), App.Rotation())
sketch20.addGeometry([
    Part.ArcOfCircle(Part.Circle(Vector(0, 2854, 0), Vector(0, 0, 1), 15), math.radians(-90), math.radians(90)),
    Part.LineSegment(Vector(0, 2869, 0), Vector(0, 2839, 0)),
], False)
sketch20.addConstraint([
    Sketcher.Constraint("Coincident", 0, 1, 1, 2),
    Sketcher.Constraint("Coincident", 1, 1, 0, 2),
    Sketcher.Constraint("Vertical", 1),
    Sketcher.Constraint("PointOnObject", 0, 3, -2),
    Sketcher.Constraint("PointOnObject", 0, 1, -2),
    Sketcher.Constraint("Radius", 0, 15.0),
    Sketcher.Constraint("DistanceY", -1, 1, 0, 3, 2854.226049),
])
revolution20 = doc.addObject("PartDesign::Revolution", "Revolution019")
body20.addObject(revolution20)
revolution20.Profile = sketch20
revolution20.ReferenceAxis = (sketch20, ["V_Axis"])
revolution20.Angle = 360
body21 = doc.addObject("PartDesign::Body", "Body020")

sketch21 = doc.addObject("Sketcher::SketchObject", "Sketch020")
body21.addObject(sketch21)
sketch21.AttachmentSupport = (doc.getObject("XZ_Plane020"), [""])
sketch21.MapMode = "FlatFace"
sketch21.AttachmentOffset = App.Placement(Vector(0, 0, -669.696007), App.Rotation())
sketch21.addGeometry([
    Part.ArcOfCircle(Part.Circle(Vector(0, 3367, 0), Vector(0, 0, 1), 15), math.radians(-90), math.radians(90)),
    Part.LineSegment(Vector(0, 3382, 0), Vector(0, 3352, 0)),
], False)
sketch21.addConstraint([
    Sketcher.Constraint("Coincident", 0, 1, 1, 2),
    Sketcher.Constraint("Coincident", 1, 1, 0, 2),
    Sketcher.Constraint("Vertical", 1),
    Sketcher.Constraint("PointOnObject", 0, 3, -2),
    Sketcher.Constraint("PointOnObject", 0, 1, -2),
    Sketcher.Constraint("Radius", 0, 15.0),
    Sketcher.Constraint("DistanceY", -1, 1, 0, 3, 3366.789182),
])
revolution21 = doc.addObject("PartDesign::Revolution", "Revolution020")
body21.addObject(revolution21)
revolution21.Profile = sketch21
revolution21.ReferenceAxis = (sketch21, ["V_Axis"])
revolution21.Angle = 360
body22 = doc.addObject("PartDesign::Body", "Body021")

sketch22 = doc.addObject("Sketcher::SketchObject", "Sketch021")
body22.addObject(sketch22)
sketch22.AttachmentSupport = (doc.getObject("XZ_Plane021"), [""])
sketch22.MapMode = "FlatFace"
sketch22.addGeometry([
    Part.ArcOfCircle(Part.Circle(Vector(670, 3367, 0), Vector(0, 0, 1), 5), math.radians(-90), math.radians(90)),
    Part.LineSegment(Vector(670, 3372, 0), Vector(670, 3362, 0)),
], False)
sketch22.addGeometry(Part.LineSegment(Vector(670, 3362, 0), Vector(670, 3372, 0)), True)
sketch22.addConstraint([
    Sketcher.Constraint("Coincident", 0, 1, 1, 2),
    Sketcher.Constraint("Coincident", 1, 1, 0, 2),
    Sketcher.Constraint("Vertical", 1),
    Sketcher.Constraint("Vertical", 2),
    Sketcher.Constraint("Coincident", 2, 1, 0, 1),
    Sketcher.Constraint("Equal", 1, 2),
    Sketcher.Constraint("Radius", 0, 5.0),
    Sketcher.Constraint("DistanceY", -1, 1, 0, 3, 3366.789182),
    Sketcher.Constraint("DistanceX", -1, 1, 0, 3, 669.696007),
    Sketcher.Constraint("DistanceX", -1, 1, 0, 1, 669.696007),
])
revolution22 = doc.addObject("PartDesign::Revolution", "Revolution021")
body22.addObject(revolution22)
revolution22.Profile = sketch22
revolution22.ReferenceAxis = (sketch22, ["Axis0"])
revolution22.Angle = 360
body23 = doc.addObject("PartDesign::Body", "Body022")

sketch23 = doc.addObject("Sketcher::SketchObject", "Sketch022")
body23.addObject(sketch23)
sketch23.AttachmentSupport = (doc.getObject("XZ_Plane022"), [""])
sketch23.MapMode = "FlatFace"
sketch23.addGeometry([
    Part.ArcOfCircle(Part.Circle(Vector(1907, 2854, 0), Vector(0, 0, 1), 5), math.radians(-90), math.radians(90)),
    Part.LineSegment(Vector(1907, 2859, 0), Vector(1907, 2849, 0)),
], False)
sketch23.addGeometry(Part.LineSegment(Vector(1907, 2849, 0), Vector(1907, 2859, 0)), True)
sketch23.addConstraint([
    Sketcher.Constraint("Coincident", 0, 1, 1, 2),
    Sketcher.Constraint("Coincident", 1, 1, 0, 2),
    Sketcher.Constraint("Vertical", 1),
    Sketcher.Constraint("Vertical", 2),
    Sketcher.Constraint("Coincident", 2, 1, 0, 1),
    Sketcher.Constraint("Equal", 1, 2),
    Sketcher.Constraint("Radius", 0, 5.0),
    Sketcher.Constraint("DistanceY", -1, 1, 0, 3, 2854.226049),
    Sketcher.Constraint("DistanceX", -1, 1, 0, 3, 1907.132874),
    Sketcher.Constraint("DistanceX", -1, 1, 0, 1, 1907.132874),
])
revolution23 = doc.addObject("PartDesign::Revolution", "Revolution022")
body23.addObject(revolution23)
revolution23.Profile = sketch23
revolution23.ReferenceAxis = (sketch23, ["Axis0"])
revolution23.Angle = 360
body24 = doc.addObject("PartDesign::Body", "Body023")

sketch24 = doc.addObject("Sketcher::SketchObject", "Sketch023")
body24.addObject(sketch24)
sketch24.AttachmentSupport = (doc.getObject("XZ_Plane023"), [""])
sketch24.MapMode = "FlatFace"
sketch24.addGeometry([
    Part.ArcOfCircle(Part.Circle(Vector(2854, 1907, 0), Vector(0, 0, 1), 5), math.radians(-90), math.radians(90)),
    Part.LineSegment(Vector(2854, 1912, 0), Vector(2854, 1902, 0)),
], False)
sketch24.addGeometry(Part.LineSegment(Vector(2854, 1902, 0), Vector(2854, 1912, 0)), True)
sketch24.addConstraint([
    Sketcher.Constraint("Coincident", 0, 1, 1, 2),
    Sketcher.Constraint("Coincident", 1, 1, 0, 2),
    Sketcher.Constraint("Vertical", 1),
    Sketcher.Constraint("Vertical", 2),
    Sketcher.Constraint("Coincident", 2, 1, 0, 1),
    Sketcher.Constraint("Equal", 1, 2),
    Sketcher.Constraint("Radius", 0, 5.0),
    Sketcher.Constraint("DistanceX", -1, 1, 0, 3, 2854.226049),
    Sketcher.Constraint("DistanceX", -1, 1, 0, 1, 2854.226049),
    Sketcher.Constraint("DistanceY", -1, 1, 0, 3, 1907.132874),
])
revolution24 = doc.addObject("PartDesign::Revolution", "Revolution023")
body24.addObject(revolution24)
revolution24.Profile = sketch24
revolution24.ReferenceAxis = (sketch24, ["Axis0"])
revolution24.Angle = 360
body25 = doc.addObject("PartDesign::Body", "Body024")

sketch25 = doc.addObject("Sketcher::SketchObject", "Sketch024")
body25.addObject(sketch25)
sketch25.AttachmentSupport = (doc.getObject("XZ_Plane024"), [""])
sketch25.MapMode = "FlatFace"
sketch25.addGeometry([
    Part.ArcOfCircle(Part.Circle(Vector(3367, 670, 0), Vector(0, 0, 1), 5), math.radians(-90), math.radians(90)),
    Part.LineSegment(Vector(3367, 675, 0), Vector(3367, 665, 0)),
], False)
sketch25.addGeometry(Part.LineSegment(Vector(3367, 665, 0), Vector(3367, 675, 0)), True)
sketch25.addConstraint([
    Sketcher.Constraint("Coincident", 0, 1, 1, 2),
    Sketcher.Constraint("Coincident", 1, 1, 0, 2),
    Sketcher.Constraint("Vertical", 1),
    Sketcher.Constraint("Vertical", 2),
    Sketcher.Constraint("Coincident", 2, 1, 0, 1),
    Sketcher.Constraint("Equal", 1, 2),
    Sketcher.Constraint("Radius", 0, 5.0),
    Sketcher.Constraint("DistanceX", -1, 1, 0, 3, 3366.789182),
    Sketcher.Constraint("DistanceX", -1, 1, 0, 1, 3366.789182),
    Sketcher.Constraint("DistanceY", -1, 1, 0, 3, 669.696007),
])
revolution25 = doc.addObject("PartDesign::Revolution", "Revolution024")
body25.addObject(revolution25)
revolution25.Profile = sketch25
revolution25.ReferenceAxis = (sketch25, ["Axis0"])
revolution25.Angle = 360
body26 = doc.addObject("PartDesign::Body", "Body025")

sketch26 = doc.addObject("Sketcher::SketchObject", "Sketch025")
body26.addObject(sketch26)
sketch26.AttachmentSupport = (doc.getObject("XZ_Plane025"), [""])
sketch26.MapMode = "FlatFace"
sketch26.addGeometry([
    Part.ArcOfCircle(Part.Circle(Vector(0, 0, 0), Vector(0, 0, 1), 15), math.radians(-90), math.radians(90)),
    Part.LineSegment(Vector(0, 15, 0), Vector(0, -15, 0)),
], False)
sketch26.addConstraint([
    Sketcher.Constraint("Coincident", 0, 1, 1, 2),
    Sketcher.Constraint("Coincident", 1, 1, 0, 2),
    Sketcher.Constraint("Vertical", 1),
    Sketcher.Constraint("Coincident", 0, 3, -1, 1),
    Sketcher.Constraint("PointOnObject", 0, 1, -2),
    Sketcher.Constraint("Radius", 0, 15.0),
])
revolution26 = doc.addObject("PartDesign::Revolution", "Revolution025")
body26.addObject(revolution26)
revolution26.Profile = sketch26
revolution26.ReferenceAxis = (sketch26, ["V_Axis"])
revolution26.Angle = 360
body27 = doc.addObject("PartDesign::Body", "Body026")
doc.recompute()

body26.Placement = App.Placement(Vector(3466.537331, 0, 0), App.Rotation(Vector(0, -1, 0), 314.444216))
boolean = doc.addObject("PartDesign::Boolean", "Boolean")
body27.addObject(boolean)
boolean.Type = "Fuse"
boolean.addObjects([body26])
body28 = doc.addObject("PartDesign::Body", "Body027")

sketch27 = doc.addObject("Sketcher::SketchObject", "Sketch026")
body28.addObject(sketch27)
sketch27.AttachmentSupport = (doc.getObject("XZ_Plane027"), [""])
sketch27.MapMode = "FlatFace"
sketch27.addGeometry([
    Part.ArcOfCircle(Part.Circle(Vector(0, 0, 0), Vector(0, 0, 1), 15), math.radians(-90), math.radians(90)),
    Part.LineSegment(Vector(0, 15, 0), Vector(0, -15, 0)),
], False)
sketch27.addConstraint([
    Sketcher.Constraint("Coincident", 0, 1, 1, 2),
    Sketcher.Constraint("Coincident", 1, 1, 0, 2),
    Sketcher.Constraint("Vertical", 1),
    Sketcher.Constraint("Coincident", 0, 3, -1, 1),
    Sketcher.Constraint("PointOnObject", 0, 1, -2),
    Sketcher.Constraint("Radius", 0, 15.0),
])
revolution27 = doc.addObject("PartDesign::Revolution", "Revolution026")
body28.addObject(revolution27)
revolution27.Profile = sketch27
revolution27.ReferenceAxis = (sketch27, ["V_Axis"])
revolution27.Angle = 360
body29 = doc.addObject("PartDesign::Body", "Body028")
doc.recompute()

body28.Placement = App.Placement(Vector(3442.679348, 0, 0), App.Rotation(Vector(0, -1, 0), 337.104281))
boolean2 = doc.addObject("PartDesign::Boolean", "Boolean001")
body29.addObject(boolean2)
boolean2.Type = "Fuse"
boolean2.addObjects([body28])
body30 = doc.addObject("PartDesign::Body", "Body029")

sketch28 = doc.addObject("Sketcher::SketchObject", "Sketch027")
body30.addObject(sketch28)
sketch28.AttachmentSupport = (doc.getObject("XZ_Plane029"), [""])
sketch28.MapMode = "FlatFace"
sketch28.addGeometry([
    Part.ArcOfCircle(Part.Circle(Vector(3171, 1339, 0), Vector(0, 0, 1), 15), math.radians(-90), math.radians(90)),
    Part.LineSegment(Vector(3171, 1354, 0), Vector(3171, 1324, 0)),
], False)
sketch28.addGeometry(Part.LineSegment(Vector(3171, 1324, 0), Vector(3171, 1354, 0)), True)
sketch28.addConstraint([
    Sketcher.Constraint("Coincident", 0, 1, 1, 2),
    Sketcher.Constraint("Coincident", 1, 1, 0, 2),
    Sketcher.Constraint("Vertical", 1),
    Sketcher.Constraint("Vertical", 2),
    Sketcher.Constraint("Coincident", 2, 1, 0, 1),
    Sketcher.Constraint("Equal", 1, 2),
    Sketcher.Constraint("Radius", 0, 15.0),
    Sketcher.Constraint("DistanceX", -1, 1, 0, 3, 3171.446062),
    Sketcher.Constraint("DistanceX", -1, 1, 0, 1, 3171.446062),
    Sketcher.Constraint("DistanceY", -1, 1, 0, 3, 1339.392013),
])
revolution28 = doc.addObject("PartDesign::Revolution", "Revolution027")
body30.addObject(revolution28)
revolution28.Profile = sketch28
revolution28.ReferenceAxis = (sketch28, ["Axis0"])
revolution28.Angle = 360
body31 = doc.addObject("PartDesign::Body", "Body030")

sketch29 = doc.addObject("Sketcher::SketchObject", "Sketch028")
body31.addObject(sketch29)
sketch29.AttachmentSupport = (doc.getObject("XZ_Plane030"), [""])
sketch29.MapMode = "FlatFace"
sketch29.addGeometry([
    Part.ArcOfCircle(Part.Circle(Vector(3433, 0, 0), Vector(0, 0, 1), 15), math.radians(-90), math.radians(90)),
    Part.LineSegment(Vector(3433, 15, 0), Vector(3433, -15, 0)),
], False)
sketch29.addGeometry(Part.LineSegment(Vector(3433, -15, 0), Vector(3433, 15, 0)), True)
sketch29.addConstraint([
    Sketcher.Constraint("Coincident", 0, 1, 1, 2),
    Sketcher.Constraint("Coincident", 1, 1, 0, 2),
    Sketcher.Constraint("Vertical", 1),
    Sketcher.Constraint("Vertical", 2),
    Sketcher.Constraint("Coincident", 2, 1, 0, 1),
    Sketcher.Constraint("PointOnObject", 0, 3, -1),
    Sketcher.Constraint("Equal", 1, 2),
    Sketcher.Constraint("Radius", 0, 15.0),
    Sketcher.Constraint("DistanceX", -1, 1, 0, 3, 3432.748481),
    Sketcher.Constraint("DistanceX", -1, 1, 0, 1, 3432.748481),
])
revolution29 = doc.addObject("PartDesign::Revolution", "Revolution028")
body31.addObject(revolution29)
revolution29.Profile = sketch29
revolution29.ReferenceAxis = (sketch29, ["Axis0"])
revolution29.Angle = 360
body32 = doc.addObject("PartDesign::Body", "Body031")

sketch30 = doc.addObject("Sketcher::SketchObject", "Sketch029")
body32.addObject(sketch30)
sketch30.AttachmentSupport = (doc.getObject("XZ_Plane031"), [""])
sketch30.MapMode = "FlatFace"
sketch30.addGeometry([
    Part.ArcOfCircle(Part.Circle(Vector(0, 0, 0), Vector(0, 0, 1), 15), math.radians(-90), math.radians(90)),
    Part.LineSegment(Vector(0, 15, 0), Vector(0, -15, 0)),
], False)
sketch30.addConstraint([
    Sketcher.Constraint("Coincident", 0, 1, 1, 2),
    Sketcher.Constraint("Coincident", 1, 1, 0, 2),
    Sketcher.Constraint("Vertical", 1),
    Sketcher.Constraint("Coincident", 0, 3, -1, 1),
    Sketcher.Constraint("PointOnObject", 0, 1, -2),
    Sketcher.Constraint("Radius", 0, 15.0),
])
revolution30 = doc.addObject("PartDesign::Revolution", "Revolution029")
body32.addObject(revolution30)
revolution30.Profile = sketch30
revolution30.ReferenceAxis = (sketch30, ["V_Axis"])
revolution30.Angle = 360
body33 = doc.addObject("PartDesign::Body", "Body032")
doc.recompute()

body32.Placement = App.Placement(Vector(3242.627858, 0, 1317.33237), App.Rotation(Vector(0, 1, 0), 45.555784))
boolean3 = doc.addObject("PartDesign::Boolean", "Boolean002")
body33.addObject(boolean3)
boolean3.Type = "Fuse"
boolean3.addObjects([body32])
body34 = doc.addObject("PartDesign::Body", "Body033")

sketch31 = doc.addObject("Sketcher::SketchObject", "Sketch030")
body34.addObject(sketch31)
sketch31.AttachmentSupport = (doc.getObject("XZ_Plane033"), [""])
sketch31.MapMode = "FlatFace"
sketch31.addGeometry([
    Part.ArcOfCircle(Part.Circle(Vector(0, 0, 0), Vector(0, 0, 1), 15), math.radians(-90), math.radians(90)),
    Part.LineSegment(Vector(0, 15, 0), Vector(0, -15, 0)),
], False)
sketch31.addConstraint([
    Sketcher.Constraint("Coincident", 0, 1, 1, 2),
    Sketcher.Constraint("Coincident", 1, 1, 0, 2),
    Sketcher.Constraint("Vertical", 1),
    Sketcher.Constraint("Coincident", 0, 3, -1, 1),
    Sketcher.Constraint("PointOnObject", 0, 1, -2),
    Sketcher.Constraint("Radius", 0, 15.0),
])
revolution31 = doc.addObject("PartDesign::Revolution", "Revolution030")
body34.addObject(revolution31)
revolution31.Profile = sketch31
revolution31.ReferenceAxis = (sketch31, ["V_Axis"])
revolution31.Angle = 360
body35 = doc.addObject("PartDesign::Body", "Body034")
doc.recompute()

body34.Placement = App.Placement(Vector(3490.232234, 0, 0), App.Rotation(Vector(0, 1, 0), 45.555784))
boolean4 = doc.addObject("PartDesign::Boolean", "Boolean003")
body35.addObject(boolean4)
boolean4.Type = "Fuse"
boolean4.addObjects([body34])
body36 = doc.addObject("PartDesign::Body", "Body035")

sketch32 = doc.addObject("Sketcher::SketchObject", "Sketch031")
body36.addObject(sketch32)
sketch32.AttachmentSupport = (doc.getObject("XZ_Plane035"), [""])
sketch32.MapMode = "FlatFace"
sketch32.addGeometry([
    Part.ArcOfCircle(Part.Circle(Vector(0, 0, 0), Vector(0, 0, 1), 15), math.radians(-90), math.radians(90)),
    Part.LineSegment(Vector(0, 15, 0), Vector(0, -15, 0)),
], False)
sketch32.addConstraint([
    Sketcher.Constraint("Coincident", 0, 1, 1, 2),
    Sketcher.Constraint("Coincident", 1, 1, 0, 2),
    Sketcher.Constraint("Vertical", 1),
    Sketcher.Constraint("Coincident", 0, 3, -1, 1),
    Sketcher.Constraint("PointOnObject", 0, 1, -2),
    Sketcher.Constraint("Radius", 0, 15.0),
])
revolution32 = doc.addObject("PartDesign::Revolution", "Revolution031")
body36.addObject(revolution32)
revolution32.Profile = sketch32
revolution32.ReferenceAxis = (sketch32, ["V_Axis"])
revolution32.Angle = 360
body37 = doc.addObject("PartDesign::Body", "Body036")
doc.recompute()

body36.Placement = App.Placement(Vector(3198.944368, 0, 1335.528359), App.Rotation(Vector(0, 1, 0), 22.895719))
boolean5 = doc.addObject("PartDesign::Boolean", "Boolean004")
body37.addObject(boolean5)
boolean5.Type = "Fuse"
boolean5.addObjects([body36])
body38 = doc.addObject("PartDesign::Body", "Body037")

sketch33 = doc.addObject("Sketcher::SketchObject", "Sketch032")
body38.addObject(sketch33)
sketch33.AttachmentSupport = (doc.getObject("XZ_Plane037"), [""])
sketch33.MapMode = "FlatFace"
sketch33.addGeometry([
    Part.ArcOfCircle(Part.Circle(Vector(0, 0, 0), Vector(0, 0, 1), 15), math.radians(-90), math.radians(90)),
    Part.LineSegment(Vector(0, 15, 0), Vector(0, -15, 0)),
], False)
sketch33.addConstraint([
    Sketcher.Constraint("Coincident", 0, 1, 1, 2),
    Sketcher.Constraint("Coincident", 1, 1, 0, 2),
    Sketcher.Constraint("Vertical", 1),
    Sketcher.Constraint("Coincident", 0, 3, -1, 1),
    Sketcher.Constraint("PointOnObject", 0, 1, -2),
    Sketcher.Constraint("Radius", 0, 15.0),
])
revolution33 = doc.addObject("PartDesign::Revolution", "Revolution032")
body38.addObject(revolution33)
revolution33.Profile = sketch33
revolution33.ReferenceAxis = (sketch33, ["V_Axis"])
revolution33.Angle = 360
body39 = doc.addObject("PartDesign::Body", "Body038")
doc.recompute()

body38.Placement = App.Placement(Vector(3228.39772, 0, 1326.336762), App.Rotation(Vector(0, 1, 0), 45.555784))
boolean6 = doc.addObject("PartDesign::Boolean", "Boolean005")
body39.addObject(boolean6)
boolean6.Type = "Fuse"
boolean6.addObjects([body38])

doc.recompute()
